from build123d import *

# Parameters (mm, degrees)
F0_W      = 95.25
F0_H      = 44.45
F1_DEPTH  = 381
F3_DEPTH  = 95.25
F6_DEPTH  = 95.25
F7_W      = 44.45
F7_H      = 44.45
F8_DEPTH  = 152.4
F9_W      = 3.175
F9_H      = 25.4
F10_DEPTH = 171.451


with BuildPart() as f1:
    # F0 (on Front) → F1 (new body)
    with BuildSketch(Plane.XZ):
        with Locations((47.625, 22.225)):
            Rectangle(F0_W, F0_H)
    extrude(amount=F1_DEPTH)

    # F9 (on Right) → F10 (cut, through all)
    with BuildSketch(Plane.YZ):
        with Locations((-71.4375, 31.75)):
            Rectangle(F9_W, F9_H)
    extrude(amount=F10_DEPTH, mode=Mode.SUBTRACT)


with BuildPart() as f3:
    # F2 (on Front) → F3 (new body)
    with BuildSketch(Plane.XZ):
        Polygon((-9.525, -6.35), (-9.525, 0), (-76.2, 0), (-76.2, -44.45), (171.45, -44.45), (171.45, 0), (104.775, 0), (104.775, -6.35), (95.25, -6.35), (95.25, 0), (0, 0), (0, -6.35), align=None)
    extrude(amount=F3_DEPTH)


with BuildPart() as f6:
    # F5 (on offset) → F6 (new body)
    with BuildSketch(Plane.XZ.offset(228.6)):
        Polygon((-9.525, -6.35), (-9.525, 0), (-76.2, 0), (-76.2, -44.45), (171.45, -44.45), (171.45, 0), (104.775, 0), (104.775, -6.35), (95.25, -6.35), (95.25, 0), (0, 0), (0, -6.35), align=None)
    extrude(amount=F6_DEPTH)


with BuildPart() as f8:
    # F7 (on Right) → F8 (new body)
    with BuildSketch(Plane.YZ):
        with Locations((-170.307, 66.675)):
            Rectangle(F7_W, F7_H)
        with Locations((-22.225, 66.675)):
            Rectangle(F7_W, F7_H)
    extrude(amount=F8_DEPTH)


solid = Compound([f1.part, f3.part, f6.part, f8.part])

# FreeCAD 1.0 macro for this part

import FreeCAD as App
import Part
import Sketcher
Q = App.Units.Quantity


def add_polygon(sketch, points):
    """Adds a closed chain of lines whose ends are joined by coincident constraints."""
    first, n = sketch.GeometryCount, len(points)
    for a, b in zip(points, points[1:] + points[:1]):
        sketch.addGeometry(Part.LineSegment(App.Vector(*a, 0), App.Vector(*b, 0)), False)
    for i in range(n):
        sketch.addConstraint(Sketcher.Constraint("Coincident", first + i, 2, first + (i + 1) % n, 1))

doc = App.newDocument("Part")
body = doc.addObject("PartDesign::Body", "Body")

# Sketch on XZ plane
sketch1 = doc.addObject("Sketcher::SketchObject", "Sketch")
body.addObject(sketch1)
sketch1.AttachmentSupport = (doc.XZ_Plane, [""])
sketch1.MapMode = "FlatFace"
add_polygon(sketch1, [(0, 44), (0, 0), (95, 0), (95, 44)])  # lines 0-3
sketch1.addConstraint([
    Sketcher.Constraint("Vertical", 0),
    Sketcher.Constraint("Horizontal", 1),
    Sketcher.Constraint("Vertical", 2),
    Sketcher.Constraint("Horizontal", 3),
    Sketcher.Constraint("Coincident", 0, 2, -1, 1),
    Sketcher.Constraint("DistanceX", 1, 1, 1, 2, Q("3.75 in")),
    Sketcher.Constraint("DistanceY", 0, 2, 0, 1, Q("1.75 in")),
])
pad1 = doc.addObject("PartDesign::Pad", "Pad")
body.addObject(pad1)
pad1.Profile = sketch1
pad1.Length = Q("15 in")

# Sketch on YZ plane
sketch2 = doc.addObject("Sketcher::SketchObject", "Sketch001")
body.addObject(sketch2)
sketch2.AttachmentSupport = (doc.YZ_Plane, [""])
sketch2.MapMode = "FlatFace"
add_polygon(sketch2, [(-73, 44.5), (-73, 19.1), (-69.8, 19.1), (-69.8, 44.5)])  # lines 0-3
sketch2.addConstraint([
    Sketcher.Constraint("Vertical", 0),
    Sketcher.Constraint("Horizontal", 1),
    Sketcher.Constraint("Vertical", 2),
    Sketcher.Constraint("Horizontal", 3),
    Sketcher.Constraint("DistanceY", 0, 2, 0, 1, Q("1 in")),
    Sketcher.Constraint("DistanceX", 1, 1, 1, 2, Q("0.125 in")),
    Sketcher.Constraint("DistanceY", -1, 1, 0, 2, Q("0.75 in")),
    Sketcher.Constraint("DistanceX", 1, 2, -1, 1, Q("2.75 in")),
])
pocket1 = doc.addObject("PartDesign::Pocket", "Pocket")
body.addObject(pocket1)
pocket1.Profile = sketch2
pocket1.Type = "ThroughAll"
pocket1.Reversed = True
body2 = doc.addObject("PartDesign::Body", "Body001")

# Sketch on XZ plane
sketch3 = doc.addObject("Sketcher::SketchObject", "Sketch002")
body2.addObject(sketch3)
sketch3.AttachmentSupport = (doc.getObject("XZ_Plane001"), [""])
sketch3.MapMode = "FlatFace"
add_polygon(sketch3, [(-10, -6), (-10, 0), (-76, 0), (-76, -44), (171, -44), (171, 0), (105, 0), (105, -6), (95, -6), (95, 0), (0, 0), (0, -6)])  # lines 0-11
sketch3.addConstraint([
    Sketcher.Constraint("Vertical", 0),
    Sketcher.Constraint("Horizontal", 1),
    Sketcher.Constraint("Vertical", 2),
    Sketcher.Constraint("Horizontal", 3),
    Sketcher.Constraint("Vertical", 4),
    Sketcher.Constraint("Horizontal", 5),
    Sketcher.Constraint("Vertical", 6),
    Sketcher.Constraint("Horizontal", 7),
    Sketcher.Constraint("Vertical", 8),
    Sketcher.Constraint("Horizontal", 9),
    Sketcher.Constraint("Vertical", 10),
    Sketcher.Constraint("Horizontal", 11),
    Sketcher.Constraint("Coincident", 9, 2, -1, 1),
    Sketcher.Constraint("PointOnObject", 0, 2, -1),
    Sketcher.Constraint("PointOnObject", 4, 2, -1),
    Sketcher.Constraint("Horizontal", 7, 2, 10, 2),
    Sketcher.Constraint("Equal", 1, 5),
    Sketcher.Constraint("Equal", 7, 11),
    Sketcher.Constraint("DistanceX", 1, 2, -1, 1, Q("3 in")),
    Sketcher.Constraint("DistanceX", 3, 1, 3, 2, Q("9.75 in")),
    Sketcher.Constraint("DistanceY", 0, 1, 0, 2, Q("0.25 in")),
    Sketcher.Constraint("DistanceY", 2, 2, 2, 1, Q("1.75 in")),
    Sketcher.Constraint("DistanceX", 0, 2, 5, 2, Q("4.5 in")),
])
pad2 = doc.addObject("PartDesign::Pad", "Pad001")
body2.addObject(pad2)
pad2.Profile = sketch3
pad2.Length = Q("3.75 in")
body3 = doc.addObject("PartDesign::Body", "Body002")

# Sketch on XZ plane
sketch4 = doc.addObject("Sketcher::SketchObject", "Sketch003")
body3.addObject(sketch4)
sketch4.AttachmentSupport = (doc.getObject("XZ_Plane002"), [""])
sketch4.MapMode = "FlatFace"
sketch4.AttachmentOffset = App.Placement(App.Vector(0, 0, 9 * 25.4), App.Rotation())
add_polygon(sketch4, [(-10, -6), (-10, 0), (-76, 0), (-76, -44), (171, -44), (171, 0), (105, 0), (105, -6), (95, -6), (95, 0), (0, 0), (0, -6)])  # lines 0-11
sketch4.addConstraint([
    Sketcher.Constraint("Vertical", 0),
    Sketcher.Constraint("Horizontal", 1),
    Sketcher.Constraint("Vertical", 2),
    Sketcher.Constraint("Horizontal", 3),
    Sketcher.Constraint("Vertical", 4),
    Sketcher.Constraint("Horizontal", 5),
    Sketcher.Constraint("Vertical", 6),
    Sketcher.Constraint("Horizontal", 7),
    Sketcher.Constraint("Vertical", 8),
    Sketcher.Constraint("Horizontal", 9),
    Sketcher.Constraint("Vertical", 10),
    Sketcher.Constraint("Horizontal", 11),
    Sketcher.Constraint("Coincident", 9, 2, -1, 1),
    Sketcher.Constraint("PointOnObject", 0, 2, -1),
    Sketcher.Constraint("PointOnObject", 4, 2, -1),
    Sketcher.Constraint("Horizontal", 7, 2, 10, 2),
    Sketcher.Constraint("Equal", 1, 5),
    Sketcher.Constraint("Equal", 7, 11),
    Sketcher.Constraint("DistanceX", 1, 2, -1, 1, Q("3 in")),
    Sketcher.Constraint("DistanceX", 3, 1, 3, 2, Q("9.75 in")),
    Sketcher.Constraint("DistanceY", 0, 1, 0, 2, Q("0.25 in")),
    Sketcher.Constraint("DistanceY", 2, 2, 2, 1, Q("1.75 in")),
    Sketcher.Constraint("DistanceX", 0, 2, 5, 2, Q("4.5 in")),
])
pad3 = doc.addObject("PartDesign::Pad", "Pad002")
body3.addObject(pad3)
pad3.Profile = sketch4
pad3.Length = Q("3.75 in")
body4 = doc.addObject("PartDesign::Body", "Body003")
body4.AllowCompound = True

# Sketch on YZ plane
sketch5 = doc.addObject("Sketcher::SketchObject", "Sketch004")
body4.addObject(sketch5)
sketch5.AttachmentSupport = (doc.getObject("YZ_Plane003"), [""])
sketch5.MapMode = "FlatFace"
add_polygon(sketch5, [(-193, 89), (-193, 44), (-148, 44), (-148, 89)])  # lines 0-3
add_polygon(sketch5, [(-44, 89), (-44, 44), (0, 44), (0, 89)])  # lines 4-7
sketch5.addConstraint([
    Sketcher.Constraint("Vertical", 0),
    Sketcher.Constraint("Horizontal", 1),
    Sketcher.Constraint("Vertical", 2),
    Sketcher.Constraint("Horizontal", 3),
    Sketcher.Constraint("Vertical", 4),
    Sketcher.Constraint("Horizontal", 5),
    Sketcher.Constraint("Vertical", 6),
    Sketcher.Constraint("Horizontal", 7),
    Sketcher.Constraint("PointOnObject", 5, 2, -2),
    Sketcher.Constraint("Horizontal", 1, 2, 4, 2),
    Sketcher.Constraint("Horizontal", 3, 2, 6, 2),
    Sketcher.Constraint("Equal", 3, 5),
    Sketcher.Constraint("Equal", 7, 0),
    Sketcher.Constraint("DistanceX", 1, 1, 1, 2, Q("1.75 in")),
    Sketcher.Constraint("DistanceY", -1, 1, 2, 2, Q("3.5 in")),
    Sketcher.Constraint("DistanceX", 0, 2, -1, 1, Q("7.58 in")),
])
pad4 = doc.addObject("PartDesign::Pad", "Pad003")
body4.addObject(pad4)
pad4.Profile = sketch5
pad4.Length = Q("6 in")

doc.recompute()
